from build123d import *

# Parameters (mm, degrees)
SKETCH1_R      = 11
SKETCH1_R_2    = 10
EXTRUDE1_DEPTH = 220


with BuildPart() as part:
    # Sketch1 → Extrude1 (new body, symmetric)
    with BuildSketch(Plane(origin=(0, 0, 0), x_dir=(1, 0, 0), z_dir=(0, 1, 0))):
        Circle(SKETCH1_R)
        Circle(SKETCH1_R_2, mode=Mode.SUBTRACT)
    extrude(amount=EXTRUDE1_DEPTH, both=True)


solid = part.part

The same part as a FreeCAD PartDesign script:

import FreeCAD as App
import Part
import Sketcher
Q = App.Units.Quantity

doc = App.newDocument("Part")
params = doc.addObject("Spreadsheet::Sheet", "Params")
for row, (alias, value) in enumerate([
    ("sketch1_diameter", "22 mm"),
    ("sketch1_diameter2", "20 mm"),
    ("pad1_length", "440 mm"),
], start=1):
    params.set(f"A{row}", alias)
    params.set(f"B{row}", "=" + value)
    params.setAlias(f"B{row}", alias)

body = doc.addObject("PartDesign::Body", "Body")

sketch1 = doc.addObject("Sketcher::SketchObject", "Sketch")
body.addObject(sketch1)
sketch1.AttachmentSupport = (doc.XZ_Plane, [""])
sketch1.MapMode = "FlatFace"
sketch1.addGeometry(Part.Circle(App.Vector(0, 0, 0), App.Vector(0, 0, 1), 11), False)
sketch1.addGeometry(Part.Circle(App.Vector(0, 0, 0), App.Vector(0, 0, 1), 10), False)
sketch1.addConstraint(Sketcher.Constraint("Coincident", 0, 3, -1, 1))
sketch1.addConstraint(Sketcher.Constraint("Coincident", 1, 3, -1, 1))
sketch1.addConstraint(Sketcher.Constraint("Diameter", 0, Q("22 mm")))
sketch1.addConstraint(Sketcher.Constraint("Diameter", 1, Q("20 mm")))
sketch1.setExpression("Constraints[2]", "Params.sketch1_diameter")
sketch1.setExpression("Constraints[3]", "Params.sketch1_diameter2")
pad1 = doc.addObject("PartDesign::Pad", "Pad")
body.addObject(pad1)
pad1.Profile = sketch1
pad1.setExpression("Length", "Params.pad1_length")
pad1.Midplane = True

doc.recompute()
